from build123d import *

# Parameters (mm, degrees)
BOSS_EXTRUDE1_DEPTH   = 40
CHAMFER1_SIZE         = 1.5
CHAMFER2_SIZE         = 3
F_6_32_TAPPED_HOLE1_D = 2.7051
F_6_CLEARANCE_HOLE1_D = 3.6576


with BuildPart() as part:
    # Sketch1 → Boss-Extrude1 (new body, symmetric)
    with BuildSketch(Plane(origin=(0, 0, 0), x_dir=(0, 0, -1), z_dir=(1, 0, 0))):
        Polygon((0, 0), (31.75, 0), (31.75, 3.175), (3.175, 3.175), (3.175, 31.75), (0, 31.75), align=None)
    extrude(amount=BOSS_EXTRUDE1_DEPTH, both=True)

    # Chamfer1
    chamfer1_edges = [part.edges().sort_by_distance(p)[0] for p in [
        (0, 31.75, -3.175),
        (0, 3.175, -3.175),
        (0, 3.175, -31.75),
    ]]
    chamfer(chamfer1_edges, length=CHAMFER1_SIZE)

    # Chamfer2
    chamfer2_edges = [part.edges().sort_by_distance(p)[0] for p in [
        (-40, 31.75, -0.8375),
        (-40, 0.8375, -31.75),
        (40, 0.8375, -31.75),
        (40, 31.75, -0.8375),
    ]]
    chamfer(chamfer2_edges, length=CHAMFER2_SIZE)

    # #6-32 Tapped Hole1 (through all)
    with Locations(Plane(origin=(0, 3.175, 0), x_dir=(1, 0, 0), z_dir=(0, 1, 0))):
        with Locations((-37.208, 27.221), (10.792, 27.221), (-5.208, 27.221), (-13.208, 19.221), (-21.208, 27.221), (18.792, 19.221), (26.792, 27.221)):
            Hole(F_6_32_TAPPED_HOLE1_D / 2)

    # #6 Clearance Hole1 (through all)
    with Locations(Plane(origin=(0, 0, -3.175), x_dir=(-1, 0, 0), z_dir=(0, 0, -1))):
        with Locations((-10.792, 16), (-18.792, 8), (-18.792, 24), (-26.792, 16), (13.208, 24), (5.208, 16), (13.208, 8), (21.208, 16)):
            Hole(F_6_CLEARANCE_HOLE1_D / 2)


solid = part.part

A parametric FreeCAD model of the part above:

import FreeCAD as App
import Part
import Sketcher
from FreeCAD import Vector
Q = App.Units.Quantity


def edges_at(feature, points):
    """Names of the edges that pass closest to the given points."""
    edges = feature.Shape.Edges
    near = lambda p: min(range(len(edges)), key=lambda i: edges[i].distToShape(Part.Vertex(*p))[0])
    return sorted({f"Edge{near(p) + 1}" for p in points})

doc = App.newDocument("Part")
body = doc.addObject("PartDesign::Body", "Body")

# Sketch on YZ plane
sketch1 = body.newObject("Sketcher::SketchObject", "Sketch")
sketch1.AttachmentSupport = (doc.getObject("YZ_Plane"), [""])
sketch1.MapMode = "FlatFace"
sketch1.addGeometry(Part.LineSegment(Vector(0, 0, 0), Vector(0, -31.75, 0)), False)
sketch1.addGeometry(Part.LineSegment(Vector(0, -31.75, 0), Vector(3.175, -31.75, 0)), False)
sketch1.addGeometry(Part.LineSegment(Vector(3.175, -31.75, 0), Vector(3.175, -3.175, 0)), False)
sketch1.addGeometry(Part.LineSegment(Vector(3.175, -3.175, 0), Vector(31.75, -3.175, 0)), False)
sketch1.addGeometry(Part.LineSegment(Vector(31.75, -3.175, 0), Vector(31.75, 0, 0)), False)
sketch1.addGeometry(Part.LineSegment(Vector(31.75, 0, 0), Vector(0, 0, 0)), False)
sketch1.addConstraint(Sketcher.Constraint("Coincident", 0, 2, 1, 1))
sketch1.addConstraint(Sketcher.Constraint("Coincident", 1, 2, 2, 1))
sketch1.addConstraint(Sketcher.Constraint("Coincident", 2, 2, 3, 1))
sketch1.addConstraint(Sketcher.Constraint("Coincident", 3, 2, 4, 1))
sketch1.addConstraint(Sketcher.Constraint("Coincident", 4, 2, 5, 1))
sketch1.addConstraint(Sketcher.Constraint("Coincident", 5, 2, 0, 1))
sketch1.addConstraint(Sketcher.Constraint("Vertical", 0))
sketch1.addConstraint(Sketcher.Constraint("Horizontal", 1))
sketch1.addConstraint(Sketcher.Constraint("Vertical", 2))
sketch1.addConstraint(Sketcher.Constraint("Horizontal", 3))
sketch1.addConstraint(Sketcher.Constraint("Vertical", 4))
sketch1.addConstraint(Sketcher.Constraint("Horizontal", 5))
sketch1.addConstraint(Sketcher.Constraint("Coincident", 5, 2, -1, 1))
sketch1.addConstraint(Sketcher.Constraint("Equal", 5, 0))
sketch1.addConstraint(Sketcher.Constraint("Equal", 3, 2))
sketch1.addConstraint(Sketcher.Constraint("DistanceX", 5, 2, 5, 1, Q("1.25 in")))
sketch1.addConstraint(Sketcher.Constraint("DistanceX", 1, 1, 1, 2, Q("0.125 in")))
pad1 = body.newObject("PartDesign::Pad", "Pad")
pad1.Profile = sketch1
pad1.Length = 80
pad1.Midplane = True
doc.recompute()

chamfer = body.newObject("PartDesign::Chamfer", "Chamfer")
chamfer.Base = (pad1, edges_at(pad1, [(0, 31.75, -3.175), (0, 3.175, -3.175), (0, 3.175, -31.75)]))
chamfer.Size = 1.5
doc.recompute()

chamfer2 = body.newObject("PartDesign::Chamfer", "Chamfer001")
chamfer2.Base = (chamfer, edges_at(chamfer, [
    (-40, 31.75, -0.838),
    (-40, 0.838, -31.75),
    (40, 0.838, -31.75),
    (40, 31.75, -0.838),
]))
chamfer2.Size = 3

# Sketch on XZ plane
sketch2 = body.newObject("Sketcher::SketchObject", "Sketch001")
sketch2.AttachmentSupport = (doc.getObject("XZ_Plane"), [""])
sketch2.MapMode = "FlatFace"
sketch2.AttachmentOffset = App.Placement(Vector(0, 0, -0.125 * 25.4), App.Rotation())
sketch2.addGeometry(Part.Circle(Vector(-37.208, -27.221, 0), Vector(0, 0, 1), 1.35255), False)
sketch2.addGeometry(Part.Circle(Vector(10.792, -27.221, 0), Vector(0, 0, 1), 1.35255), False)
sketch2.addGeometry(Part.Circle(Vector(-5.208, -27.221, 0), Vector(0, 0, 1), 1.35255), False)
sketch2.addGeometry(Part.Circle(Vector(-13.208, -19.221, 0), Vector(0, 0, 1), 1.35255), False)
sketch2.addGeometry(Part.Circle(Vector(-21.208, -27.221, 0), Vector(0, 0, 1), 1.35255), False)
sketch2.addGeometry(Part.Circle(Vector(18.792, -19.221, 0), Vector(0, 0, 1), 1.35255), False)
sketch2.addGeometry(Part.Circle(Vector(26.792, -27.221, 0), Vector(0, 0, 1), 1.35255), False)
sketch2.addConstraint(Sketcher.Constraint("Equal", 0, 1))
sketch2.addConstraint(Sketcher.Constraint("Equal", 1, 2))
sketch2.addConstraint(Sketcher.Constraint("Equal", 2, 3))
sketch2.addConstraint(Sketcher.Constraint("Equal", 3, 4))
sketch2.addConstraint(Sketcher.Constraint("Equal", 4, 5))
sketch2.addConstraint(Sketcher.Constraint("Equal", 5, 6))
sketch2.addConstraint(Sketcher.Constraint("Horizontal", 0, 3, 1, 3))
sketch2.addConstraint(Sketcher.Constraint("Horizontal", 1, 3, 2, 3))
sketch2.addConstraint(Sketcher.Constraint("Horizontal", 2, 3, 4, 3))
sketch2.addConstraint(Sketcher.Constraint("Horizontal", 3, 3, 5, 3))
sketch2.addConstraint(Sketcher.Constraint("Horizontal", 4, 3, 6, 3))
sketch2.addConstraint(Sketcher.Constraint("Diameter", 0, Q("0.1065 in")))
sketch2.addConstraint(Sketcher.Constraint("DistanceX", 3, 3, -1, 1, Q("0.52 in")))
sketch2.addConstraint(Sketcher.Constraint("DistanceX", 0, 3, -1, 1, 37.208))
sketch2.addConstraint(Sketcher.Constraint("DistanceY", 0, 3, -1, 1, 27.221))
sketch2.addConstraint(Sketcher.Constraint("DistanceX", -1, 1, 1, 3, 10.792))
sketch2.addConstraint(Sketcher.Constraint("DistanceX", 2, 3, -1, 1, 5.208))
sketch2.addConstraint(Sketcher.Constraint("DistanceY", 3, 3, -1, 1, 19.221))
sketch2.addConstraint(Sketcher.Constraint("DistanceX", 4, 3, -1, 1, 21.208))
sketch2.addConstraint(Sketcher.Constraint("DistanceX", -1, 1, 5, 3, 18.792))
sketch2.addConstraint(Sketcher.Constraint("DistanceX", -1, 1, 6, 3, 26.792))
doc.recompute()
hole = body.newObject("PartDesign::Hole", "Hole")
hole.Profile = sketch2
hole.ThreadType = "None"
hole.Diameter = Q("0.1065 in")
hole.DepthType = "ThroughAll"
hole.Reversed = True

# Sketch on XY plane
sketch3 = body.newObject("Sketcher::SketchObject", "Sketch002")
sketch3.AttachmentSupport = (doc.getObject("XY_Plane"), [""])
sketch3.MapMode = "FlatFace"
sketch3.AttachmentOffset = App.Placement(Vector(0, 0, -0.125 * 25.4), App.Rotation())
sketch3.addGeometry(Part.Circle(Vector(10.792, 16, 0), Vector(0, 0, 1), 1.8288), False)
sketch3.addGeometry(Part.Circle(Vector(18.792, 8, 0), Vector(0, 0, 1), 1.8288), False)
sketch3.addGeometry(Part.Circle(Vector(18.792, 24, 0), Vector(0, 0, 1), 1.8288), False)
sketch3.addGeometry(Part.Circle(Vector(26.792, 16, 0), Vector(0, 0, 1), 1.8288), False)
sketch3.addGeometry(Part.Circle(Vector(-13.208, 24, 0), Vector(0, 0, 1), 1.8288), False)
sketch3.addGeometry(Part.Circle(Vector(-5.208, 16, 0), Vector(0, 0, 1), 1.8288), False)
sketch3.addGeometry(Part.Circle(Vector(-13.208, 8, 0), Vector(0, 0, 1), 1.8288), False)
sketch3.addGeometry(Part.Circle(Vector(-21.208, 16, 0), Vector(0, 0, 1), 1.8288), False)
sketch3.addConstraint(Sketcher.Constraint("Equal", 0, 1))
sketch3.addConstraint(Sketcher.Constraint("Equal", 1, 2))
sketch3.addConstraint(Sketcher.Constraint("Equal", 2, 3))
sketch3.addConstraint(Sketcher.Constraint("Equal", 3, 4))
sketch3.addConstraint(Sketcher.Constraint("Equal", 4, 5))
sketch3.addConstraint(Sketcher.Constraint("Equal", 5, 6))
sketch3.addConstraint(Sketcher.Constraint("Equal", 6, 7))
sketch3.addConstraint(Sketcher.Constraint("Horizontal", 0, 3, 3, 3))
sketch3.addConstraint(Sketcher.Constraint("Horizontal", 2, 3, 4, 3))
sketch3.addConstraint(Sketcher.Constraint("Horizontal", 3, 3, 5, 3))
sketch3.addConstraint(Sketcher.Constraint("Horizontal", 1, 3, 6, 3))
sketch3.addConstraint(Sketcher.Constraint("Horizontal", 5, 3, 7, 3))
sketch3.addConstraint(Sketcher.Constraint("Vertical", 1, 3, 2, 3))
sketch3.addConstraint(Sketcher.Constraint("Vertical", 4, 3, 6, 3))
sketch3.addConstraint(Sketcher.Constraint("Diameter", 0, Q("0.144 in")))
sketch3.addConstraint(Sketcher.Constraint("DistanceX", 4, 3, -1, 1, Q("0.52 in")))
sketch3.addConstraint(Sketcher.Constraint("DistanceX", -1, 1, 0, 3, 10.792))
sketch3.addConstraint(Sketcher.Constraint("DistanceY", -1, 1, 0, 3, 16.0))
sketch3.addConstraint(Sketcher.Constraint("DistanceX", -1, 1, 1, 3, 18.792))
sketch3.addConstraint(Sketcher.Constraint("DistanceY", -1, 1, 1, 3, 8.0))
sketch3.addConstraint(Sketcher.Constraint("DistanceY", -1, 1, 2, 3, 24.0))
sketch3.addConstraint(Sketcher.Constraint("DistanceX", -1, 1, 3, 3, 26.792))
sketch3.addConstraint(Sketcher.Constraint("DistanceX", 5, 3, -1, 1, 5.208))
sketch3.addConstraint(Sketcher.Constraint("DistanceX", 7, 3, -1, 1, 21.208))
doc.recompute()
hole2 = body.newObject("PartDesign::Hole", "Hole001")
hole2.Profile = sketch3
hole2.ThreadType = "None"
hole2.Diameter = Q("0.144 in")
hole2.DepthType = "ThroughAll"
hole2.Reversed = True

doc.recompute()
